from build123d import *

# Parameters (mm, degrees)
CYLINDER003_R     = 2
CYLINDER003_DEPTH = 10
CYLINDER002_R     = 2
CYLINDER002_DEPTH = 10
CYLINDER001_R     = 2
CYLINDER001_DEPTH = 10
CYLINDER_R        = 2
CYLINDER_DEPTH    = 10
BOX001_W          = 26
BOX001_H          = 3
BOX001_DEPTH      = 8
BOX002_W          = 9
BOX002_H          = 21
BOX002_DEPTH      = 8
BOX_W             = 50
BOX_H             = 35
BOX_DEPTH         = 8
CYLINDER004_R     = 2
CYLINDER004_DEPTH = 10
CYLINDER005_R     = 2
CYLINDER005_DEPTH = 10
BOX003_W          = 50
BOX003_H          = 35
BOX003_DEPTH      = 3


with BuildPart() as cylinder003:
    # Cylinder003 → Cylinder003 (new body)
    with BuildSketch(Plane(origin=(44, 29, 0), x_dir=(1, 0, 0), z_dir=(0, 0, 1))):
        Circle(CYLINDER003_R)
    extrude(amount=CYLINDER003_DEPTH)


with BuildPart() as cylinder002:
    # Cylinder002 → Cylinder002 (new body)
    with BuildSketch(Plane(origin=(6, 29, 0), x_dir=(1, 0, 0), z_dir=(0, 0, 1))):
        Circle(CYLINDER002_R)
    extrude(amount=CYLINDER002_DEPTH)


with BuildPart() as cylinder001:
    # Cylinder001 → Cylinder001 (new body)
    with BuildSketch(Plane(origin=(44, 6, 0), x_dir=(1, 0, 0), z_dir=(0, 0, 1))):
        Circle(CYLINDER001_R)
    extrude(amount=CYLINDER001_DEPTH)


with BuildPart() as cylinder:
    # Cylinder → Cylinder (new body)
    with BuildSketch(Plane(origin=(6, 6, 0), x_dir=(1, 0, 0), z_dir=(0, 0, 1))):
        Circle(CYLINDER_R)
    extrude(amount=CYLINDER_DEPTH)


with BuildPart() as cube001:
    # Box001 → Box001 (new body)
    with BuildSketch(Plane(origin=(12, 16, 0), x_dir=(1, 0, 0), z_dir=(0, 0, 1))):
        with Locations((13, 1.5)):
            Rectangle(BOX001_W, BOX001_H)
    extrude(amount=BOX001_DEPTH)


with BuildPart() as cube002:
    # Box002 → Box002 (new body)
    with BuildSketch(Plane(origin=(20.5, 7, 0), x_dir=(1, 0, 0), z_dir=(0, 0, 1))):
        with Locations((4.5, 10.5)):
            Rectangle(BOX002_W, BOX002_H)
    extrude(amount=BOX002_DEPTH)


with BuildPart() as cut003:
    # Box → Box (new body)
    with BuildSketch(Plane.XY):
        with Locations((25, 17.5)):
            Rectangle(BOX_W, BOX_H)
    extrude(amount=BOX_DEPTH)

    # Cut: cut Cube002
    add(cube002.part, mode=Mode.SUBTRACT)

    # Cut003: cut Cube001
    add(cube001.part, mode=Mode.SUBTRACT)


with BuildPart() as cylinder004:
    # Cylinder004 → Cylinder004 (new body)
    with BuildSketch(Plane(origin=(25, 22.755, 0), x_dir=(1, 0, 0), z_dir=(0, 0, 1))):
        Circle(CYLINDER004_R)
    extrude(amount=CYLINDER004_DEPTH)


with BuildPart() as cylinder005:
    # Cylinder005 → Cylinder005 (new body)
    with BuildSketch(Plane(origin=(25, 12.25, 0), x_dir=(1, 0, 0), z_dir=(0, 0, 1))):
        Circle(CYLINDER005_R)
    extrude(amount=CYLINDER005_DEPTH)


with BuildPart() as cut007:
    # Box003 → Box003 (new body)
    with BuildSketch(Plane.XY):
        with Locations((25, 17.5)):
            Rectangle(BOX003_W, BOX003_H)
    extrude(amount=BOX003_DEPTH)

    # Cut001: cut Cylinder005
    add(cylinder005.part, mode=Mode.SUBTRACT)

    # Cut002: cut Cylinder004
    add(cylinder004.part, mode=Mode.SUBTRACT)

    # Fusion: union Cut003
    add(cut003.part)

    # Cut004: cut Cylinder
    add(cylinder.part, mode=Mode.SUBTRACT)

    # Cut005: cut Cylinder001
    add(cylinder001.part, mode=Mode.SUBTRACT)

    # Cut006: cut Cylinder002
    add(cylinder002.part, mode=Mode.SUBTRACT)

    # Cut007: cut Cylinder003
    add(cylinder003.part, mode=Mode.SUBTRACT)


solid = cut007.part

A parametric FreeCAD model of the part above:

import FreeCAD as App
import Part
import Sketcher
from FreeCAD import Vector
Q = App.Units.Quantity

doc = App.newDocument("Part")
body = doc.addObject("PartDesign::Body", "Body")

sketch1 = doc.addObject("Sketcher::SketchObject", "Sketch")
body.addObject(sketch1)
sketch1.AttachmentSupport = (doc.XY_Plane, [""])
sketch1.MapMode = "FlatFace"
sketch1.addGeometry(Part.Circle(Vector(44, 29, 0), Vector(0, 0, 1), 2), False)
sketch1.addConstraint(Sketcher.Constraint("Diameter", 0, Q("4 mm")))
sketch1.addConstraint(Sketcher.Constraint("DistanceX", -1, 1, 0, 3, Q("44 mm")))
sketch1.addConstraint(Sketcher.Constraint("DistanceY", -1, 1, 0, 3, Q("29 mm")))
pad1 = doc.addObject("PartDesign::Pad", "Pad")
body.addObject(pad1)
pad1.Profile = sketch1
pad1.Length = 10
body2 = doc.addObject("PartDesign::Body", "Body001")

sketch2 = doc.addObject("Sketcher::SketchObject", "Sketch001")
body2.addObject(sketch2)
sketch2.AttachmentSupport = (doc.getObject("XY_Plane001"), [""])
sketch2.MapMode = "FlatFace"
sketch2.addGeometry(Part.Circle(Vector(6, 29, 0), Vector(0, 0, 1), 2), False)
sketch2.addConstraint(Sketcher.Constraint("Diameter", 0, Q("4 mm")))
sketch2.addConstraint(Sketcher.Constraint("DistanceX", -1, 1, 0, 3, Q("6 mm")))
sketch2.addConstraint(Sketcher.Constraint("DistanceY", -1, 1, 0, 3, Q("29 mm")))
pad2 = doc.addObject("PartDesign::Pad", "Pad001")
body2.addObject(pad2)
pad2.Profile = sketch2
pad2.Length = 10
body3 = doc.addObject("PartDesign::Body", "Body002")

sketch3 = doc.addObject("Sketcher::SketchObject", "Sketch002")
body3.addObject(sketch3)
sketch3.AttachmentSupport = (doc.getObject("XY_Plane002"), [""])
sketch3.MapMode = "FlatFace"
sketch3.addGeometry(Part.Circle(Vector(44, 6, 0), Vector(0, 0, 1), 2), False)
sketch3.addConstraint(Sketcher.Constraint("Diameter", 0, Q("4 mm")))
sketch3.addConstraint(Sketcher.Constraint("DistanceX", -1, 1, 0, 3, Q("44 mm")))
sketch3.addConstraint(Sketcher.Constraint("DistanceY", -1, 1, 0, 3, Q("6 mm")))
pad3 = doc.addObject("PartDesign::Pad", "Pad002")
body3.addObject(pad3)
pad3.Profile = sketch3
pad3.Length = 10
body4 = doc.addObject("PartDesign::Body", "Body003")

sketch4 = doc.addObject("Sketcher::SketchObject", "Sketch003")
body4.addObject(sketch4)
sketch4.AttachmentSupport = (doc.getObject("XY_Plane003"), [""])
sketch4.MapMode = "FlatFace"
sketch4.addGeometry(Part.Circle(Vector(6, 6, 0), Vector(0, 0, 1), 2), False)
sketch4.addConstraint(Sketcher.Constraint("Diameter", 0, Q("4 mm")))
sketch4.addConstraint(Sketcher.Constraint("DistanceX", -1, 1, 0, 3, Q("6 mm")))
sketch4.addConstraint(Sketcher.Constraint("DistanceY", -1, 1, 0, 3, Q("6 mm")))
pad4 = doc.addObject("PartDesign::Pad", "Pad003")
body4.addObject(pad4)
pad4.Profile = sketch4
pad4.Length = 10
body5 = doc.addObject("PartDesign::Body", "Body004")

sketch5 = doc.addObject("Sketcher::SketchObject", "Sketch004")
body5.addObject(sketch5)
sketch5.AttachmentSupport = (doc.getObject("XY_Plane004"), [""])
sketch5.MapMode = "FlatFace"
sketch5.addGeometry(Part.LineSegment(Vector(12, 19, 0), Vector(12, 16, 0)), False)
sketch5.addGeometry(Part.LineSegment(Vector(12, 16, 0), Vector(38, 16, 0)), False)
sketch5.addGeometry(Part.LineSegment(Vector(38, 16, 0), Vector(38, 19, 0)), False)
sketch5.addGeometry(Part.LineSegment(Vector(38, 19, 0), Vector(12, 19, 0)), False)
sketch5.addConstraint(Sketcher.Constraint("Coincident", 0, 2, 1, 1))
sketch5.addConstraint(Sketcher.Constraint("Coincident", 1, 2, 2, 1))
sketch5.addConstraint(Sketcher.Constraint("Coincident", 2, 2, 3, 1))
sketch5.addConstraint(Sketcher.Constraint("Coincident", 3, 2, 0, 1))
sketch5.addConstraint(Sketcher.Constraint("Vertical", 0))
sketch5.addConstraint(Sketcher.Constraint("Horizontal", 1))
sketch5.addConstraint(Sketcher.Constraint("Vertical", 2))
sketch5.addConstraint(Sketcher.Constraint("Horizontal", 3))
sketch5.addConstraint(Sketcher.Constraint("DistanceX", 1, 1, 1, 2, Q("26 mm")))
sketch5.addConstraint(Sketcher.Constraint("DistanceY", 0, 2, 0, 1, Q("3 mm")))
sketch5.addConstraint(Sketcher.Constraint("DistanceX", -1, 1, 0, 2, Q("12 mm")))
sketch5.addConstraint(Sketcher.Constraint("DistanceY", -1, 1, 0, 2, Q("16 mm")))
pad5 = doc.addObject("PartDesign::Pad", "Pad004")
body5.addObject(pad5)
pad5.Profile = sketch5
pad5.Length = 8
body6 = doc.addObject("PartDesign::Body", "Body005")

sketch6 = doc.addObject("Sketcher::SketchObject", "Sketch005")
body6.addObject(sketch6)
sketch6.AttachmentSupport = (doc.getObject("XY_Plane005"), [""])
sketch6.MapMode = "FlatFace"
sketch6.addGeometry(Part.LineSegment(Vector(20.5, 28, 0), Vector(20.5, 7, 0)), False)
sketch6.addGeometry(Part.LineSegment(Vector(20.5, 7, 0), Vector(29.5, 7, 0)), False)
sketch6.addGeometry(Part.LineSegment(Vector(29.5, 7, 0), Vector(29.5, 28, 0)), False)
sketch6.addGeometry(Part.LineSegment(Vector(29.5, 28, 0), Vector(20.5, 28, 0)), False)
sketch6.addConstraint(Sketcher.Constraint("Coincident", 0, 2, 1, 1))
sketch6.addConstraint(Sketcher.Constraint("Coincident", 1, 2, 2, 1))
sketch6.addConstraint(Sketcher.Constraint("Coincident", 2, 2, 3, 1))
sketch6.addConstraint(Sketcher.Constraint("Coincident", 3, 2, 0, 1))
sketch6.addConstraint(Sketcher.Constraint("Vertical", 0))
sketch6.addConstraint(Sketcher.Constraint("Horizontal", 1))
sketch6.addConstraint(Sketcher.Constraint("Vertical", 2))
sketch6.addConstraint(Sketcher.Constraint("Horizontal", 3))
sketch6.addConstraint(Sketcher.Constraint("DistanceX", 1, 1, 1, 2, Q("9 mm")))
sketch6.addConstraint(Sketcher.Constraint("DistanceY", 0, 2, 0, 1, Q("21 mm")))
sketch6.addConstraint(Sketcher.Constraint("DistanceY", -1, 1, 0, 2, Q("7 mm")))
sketch6.addConstraint(Sketcher.Constraint("DistanceX", -1, 1, 0, 2, Q("20.5 mm")))
pad6 = doc.addObject("PartDesign::Pad", "Pad005")
body6.addObject(pad6)
pad6.Profile = sketch6
pad6.Length = 8
body7 = doc.addObject("PartDesign::Body", "Body006")

sketch7 = doc.addObject("Sketcher::SketchObject", "Sketch006")
body7.addObject(sketch7)
sketch7.AttachmentSupport = (doc.getObject("XY_Plane006"), [""])
sketch7.MapMode = "FlatFace"
sketch7.addGeometry(Part.LineSegment(Vector(0, 35, 0), Vector(0, 0, 0)), False)
sketch7.addGeometry(Part.LineSegment(Vector(0, 0, 0), Vector(50, 0, 0)), False)
sketch7.addGeometry(Part.LineSegment(Vector(50, 0, 0), Vector(50, 35, 0)), False)
sketch7.addGeometry(Part.LineSegment(Vector(50, 35, 0), Vector(0, 35, 0)), False)
sketch7.addConstraint(Sketcher.Constraint("Coincident", 0, 2, 1, 1))
sketch7.addConstraint(Sketcher.Constraint("Coincident", 1, 2, 2, 1))
sketch7.addConstraint(Sketcher.Constraint("Coincident", 2, 2, 3, 1))
sketch7.addConstraint(Sketcher.Constraint("Coincident", 3, 2, 0, 1))
sketch7.addConstraint(Sketcher.Constraint("Vertical", 0))
sketch7.addConstraint(Sketcher.Constraint("Horizontal", 1))
sketch7.addConstraint(Sketcher.Constraint("Vertical", 2))
sketch7.addConstraint(Sketcher.Constraint("Horizontal", 3))
sketch7.addConstraint(Sketcher.Constraint("Coincident", 0, 2, -1, 1))
sketch7.addConstraint(Sketcher.Constraint("DistanceX", 1, 1, 1, 2, Q("50 mm")))
sketch7.addConstraint(Sketcher.Constraint("DistanceY", 0, 2, 0, 1, Q("35 mm")))
pad7 = doc.addObject("PartDesign::Pad", "Pad006")
body7.addObject(pad7)
pad7.Profile = sketch7
pad7.Length = 8
doc.recompute()

boolean = doc.addObject("PartDesign::Boolean", "Boolean")
body7.addObject(boolean)
boolean.Type = "Cut"
boolean.addObjects([body6])
doc.recompute()

boolean2 = doc.addObject("PartDesign::Boolean", "Boolean001")
body7.addObject(boolean2)
boolean2.Type = "Cut"
boolean2.addObjects([body5])
body8 = doc.addObject("PartDesign::Body", "Body007")

sketch8 = doc.addObject("Sketcher::SketchObject", "Sketch007")
body8.addObject(sketch8)
sketch8.AttachmentSupport = (doc.getObject("XY_Plane007"), [""])
sketch8.MapMode = "FlatFace"
sketch8.addGeometry(Part.Circle(Vector(25, 22.755, 0), Vector(0, 0, 1), 2), False)
sketch8.addConstraint(Sketcher.Constraint("Diameter", 0, Q("4 mm")))
sketch8.addConstraint(Sketcher.Constraint("DistanceX", -1, 1, 0, 3, Q("25 mm")))
sketch8.addConstraint(Sketcher.Constraint("DistanceY", -1, 1, 0, 3, Q("22.755 mm")))
pad8 = doc.addObject("PartDesign::Pad", "Pad007")
body8.addObject(pad8)
pad8.Profile = sketch8
pad8.Length = 10
body9 = doc.addObject("PartDesign::Body", "Body008")

sketch9 = doc.addObject("Sketcher::SketchObject", "Sketch008")
body9.addObject(sketch9)
sketch9.AttachmentSupport = (doc.getObject("XY_Plane008"), [""])
sketch9.MapMode = "FlatFace"
sketch9.addGeometry(Part.Circle(Vector(25, 12.25, 0), Vector(0, 0, 1), 2), False)
sketch9.addConstraint(Sketcher.Constraint("Diameter", 0, Q("4 mm")))
sketch9.addConstraint(Sketcher.Constraint("DistanceX", -1, 1, 0, 3, Q("25 mm")))
sketch9.addConstraint(Sketcher.Constraint("DistanceY", -1, 1, 0, 3, Q("12.25 mm")))
pad9 = doc.addObject("PartDesign::Pad", "Pad008")
body9.addObject(pad9)
pad9.Profile = sketch9
pad9.Length = 10
body10 = doc.addObject("PartDesign::Body", "Body009")

sketch10 = doc.addObject("Sketcher::SketchObject", "Sketch009")
body10.addObject(sketch10)
sketch10.AttachmentSupport = (doc.getObject("XY_Plane009"), [""])
sketch10.MapMode = "FlatFace"
sketch10.addGeometry(Part.LineSegment(Vector(0, 35, 0), Vector(0, 0, 0)), False)
sketch10.addGeometry(Part.LineSegment(Vector(0, 0, 0), Vector(50, 0, 0)), False)
sketch10.addGeometry(Part.LineSegment(Vector(50, 0, 0), Vector(50, 35, 0)), False)
sketch10.addGeometry(Part.LineSegment(Vector(50, 35, 0), Vector(0, 35, 0)), False)
sketch10.addConstraint(Sketcher.Constraint("Coincident", 0, 2, 1, 1))
sketch10.addConstraint(Sketcher.Constraint("Coincident", 1, 2, 2, 1))
sketch10.addConstraint(Sketcher.Constraint("Coincident", 2, 2, 3, 1))
sketch10.addConstraint(Sketcher.Constraint("Coincident", 3, 2, 0, 1))
sketch10.addConstraint(Sketcher.Constraint("Vertical", 0))
sketch10.addConstraint(Sketcher.Constraint("Horizontal", 1))
sketch10.addConstraint(Sketcher.Constraint("Vertical", 2))
sketch10.addConstraint(Sketcher.Constraint("Horizontal", 3))
sketch10.addConstraint(Sketcher.Constraint("Coincident", 0, 2, -1, 1))
sketch10.addConstraint(Sketcher.Constraint("DistanceX", 1, 1, 1, 2, Q("50 mm")))
sketch10.addConstraint(Sketcher.Constraint("DistanceY", 0, 2, 0, 1, Q("35 mm")))
pad10 = doc.addObject("PartDesign::Pad", "Pad009")
body10.addObject(pad10)
pad10.Profile = sketch10
pad10.Length = 3
doc.recompute()

boolean3 = doc.addObject("PartDesign::Boolean", "Boolean002")
body10.addObject(boolean3)
boolean3.Type = "Cut"
boolean3.addObjects([body9])
doc.recompute()

boolean4 = doc.addObject("PartDesign::Boolean", "Boolean003")
body10.addObject(boolean4)
boolean4.Type = "Cut"
boolean4.addObjects([body8])
doc.recompute()

boolean5 = doc.addObject("PartDesign::Boolean", "Boolean004")
body10.addObject(boolean5)
boolean5.Type = "Fuse"
boolean5.addObjects([body7])
doc.recompute()

boolean6 = doc.addObject("PartDesign::Boolean", "Boolean005")
body10.addObject(boolean6)
boolean6.Type = "Cut"
boolean6.addObjects([body4])
doc.recompute()

boolean7 = doc.addObject("PartDesign::Boolean", "Boolean006")
body10.addObject(boolean7)
boolean7.Type = "Cut"
boolean7.addObjects([body3])
doc.recompute()

boolean8 = doc.addObject("PartDesign::Boolean", "Boolean007")
body10.addObject(boolean8)
boolean8.Type = "Cut"
boolean8.addObjects([body2])
doc.recompute()

boolean9 = doc.addObject("PartDesign::Boolean", "Boolean008")
body10.addObject(boolean9)
boolean9.Type = "Cut"
boolean9.addObjects([body])

doc.recompute()
